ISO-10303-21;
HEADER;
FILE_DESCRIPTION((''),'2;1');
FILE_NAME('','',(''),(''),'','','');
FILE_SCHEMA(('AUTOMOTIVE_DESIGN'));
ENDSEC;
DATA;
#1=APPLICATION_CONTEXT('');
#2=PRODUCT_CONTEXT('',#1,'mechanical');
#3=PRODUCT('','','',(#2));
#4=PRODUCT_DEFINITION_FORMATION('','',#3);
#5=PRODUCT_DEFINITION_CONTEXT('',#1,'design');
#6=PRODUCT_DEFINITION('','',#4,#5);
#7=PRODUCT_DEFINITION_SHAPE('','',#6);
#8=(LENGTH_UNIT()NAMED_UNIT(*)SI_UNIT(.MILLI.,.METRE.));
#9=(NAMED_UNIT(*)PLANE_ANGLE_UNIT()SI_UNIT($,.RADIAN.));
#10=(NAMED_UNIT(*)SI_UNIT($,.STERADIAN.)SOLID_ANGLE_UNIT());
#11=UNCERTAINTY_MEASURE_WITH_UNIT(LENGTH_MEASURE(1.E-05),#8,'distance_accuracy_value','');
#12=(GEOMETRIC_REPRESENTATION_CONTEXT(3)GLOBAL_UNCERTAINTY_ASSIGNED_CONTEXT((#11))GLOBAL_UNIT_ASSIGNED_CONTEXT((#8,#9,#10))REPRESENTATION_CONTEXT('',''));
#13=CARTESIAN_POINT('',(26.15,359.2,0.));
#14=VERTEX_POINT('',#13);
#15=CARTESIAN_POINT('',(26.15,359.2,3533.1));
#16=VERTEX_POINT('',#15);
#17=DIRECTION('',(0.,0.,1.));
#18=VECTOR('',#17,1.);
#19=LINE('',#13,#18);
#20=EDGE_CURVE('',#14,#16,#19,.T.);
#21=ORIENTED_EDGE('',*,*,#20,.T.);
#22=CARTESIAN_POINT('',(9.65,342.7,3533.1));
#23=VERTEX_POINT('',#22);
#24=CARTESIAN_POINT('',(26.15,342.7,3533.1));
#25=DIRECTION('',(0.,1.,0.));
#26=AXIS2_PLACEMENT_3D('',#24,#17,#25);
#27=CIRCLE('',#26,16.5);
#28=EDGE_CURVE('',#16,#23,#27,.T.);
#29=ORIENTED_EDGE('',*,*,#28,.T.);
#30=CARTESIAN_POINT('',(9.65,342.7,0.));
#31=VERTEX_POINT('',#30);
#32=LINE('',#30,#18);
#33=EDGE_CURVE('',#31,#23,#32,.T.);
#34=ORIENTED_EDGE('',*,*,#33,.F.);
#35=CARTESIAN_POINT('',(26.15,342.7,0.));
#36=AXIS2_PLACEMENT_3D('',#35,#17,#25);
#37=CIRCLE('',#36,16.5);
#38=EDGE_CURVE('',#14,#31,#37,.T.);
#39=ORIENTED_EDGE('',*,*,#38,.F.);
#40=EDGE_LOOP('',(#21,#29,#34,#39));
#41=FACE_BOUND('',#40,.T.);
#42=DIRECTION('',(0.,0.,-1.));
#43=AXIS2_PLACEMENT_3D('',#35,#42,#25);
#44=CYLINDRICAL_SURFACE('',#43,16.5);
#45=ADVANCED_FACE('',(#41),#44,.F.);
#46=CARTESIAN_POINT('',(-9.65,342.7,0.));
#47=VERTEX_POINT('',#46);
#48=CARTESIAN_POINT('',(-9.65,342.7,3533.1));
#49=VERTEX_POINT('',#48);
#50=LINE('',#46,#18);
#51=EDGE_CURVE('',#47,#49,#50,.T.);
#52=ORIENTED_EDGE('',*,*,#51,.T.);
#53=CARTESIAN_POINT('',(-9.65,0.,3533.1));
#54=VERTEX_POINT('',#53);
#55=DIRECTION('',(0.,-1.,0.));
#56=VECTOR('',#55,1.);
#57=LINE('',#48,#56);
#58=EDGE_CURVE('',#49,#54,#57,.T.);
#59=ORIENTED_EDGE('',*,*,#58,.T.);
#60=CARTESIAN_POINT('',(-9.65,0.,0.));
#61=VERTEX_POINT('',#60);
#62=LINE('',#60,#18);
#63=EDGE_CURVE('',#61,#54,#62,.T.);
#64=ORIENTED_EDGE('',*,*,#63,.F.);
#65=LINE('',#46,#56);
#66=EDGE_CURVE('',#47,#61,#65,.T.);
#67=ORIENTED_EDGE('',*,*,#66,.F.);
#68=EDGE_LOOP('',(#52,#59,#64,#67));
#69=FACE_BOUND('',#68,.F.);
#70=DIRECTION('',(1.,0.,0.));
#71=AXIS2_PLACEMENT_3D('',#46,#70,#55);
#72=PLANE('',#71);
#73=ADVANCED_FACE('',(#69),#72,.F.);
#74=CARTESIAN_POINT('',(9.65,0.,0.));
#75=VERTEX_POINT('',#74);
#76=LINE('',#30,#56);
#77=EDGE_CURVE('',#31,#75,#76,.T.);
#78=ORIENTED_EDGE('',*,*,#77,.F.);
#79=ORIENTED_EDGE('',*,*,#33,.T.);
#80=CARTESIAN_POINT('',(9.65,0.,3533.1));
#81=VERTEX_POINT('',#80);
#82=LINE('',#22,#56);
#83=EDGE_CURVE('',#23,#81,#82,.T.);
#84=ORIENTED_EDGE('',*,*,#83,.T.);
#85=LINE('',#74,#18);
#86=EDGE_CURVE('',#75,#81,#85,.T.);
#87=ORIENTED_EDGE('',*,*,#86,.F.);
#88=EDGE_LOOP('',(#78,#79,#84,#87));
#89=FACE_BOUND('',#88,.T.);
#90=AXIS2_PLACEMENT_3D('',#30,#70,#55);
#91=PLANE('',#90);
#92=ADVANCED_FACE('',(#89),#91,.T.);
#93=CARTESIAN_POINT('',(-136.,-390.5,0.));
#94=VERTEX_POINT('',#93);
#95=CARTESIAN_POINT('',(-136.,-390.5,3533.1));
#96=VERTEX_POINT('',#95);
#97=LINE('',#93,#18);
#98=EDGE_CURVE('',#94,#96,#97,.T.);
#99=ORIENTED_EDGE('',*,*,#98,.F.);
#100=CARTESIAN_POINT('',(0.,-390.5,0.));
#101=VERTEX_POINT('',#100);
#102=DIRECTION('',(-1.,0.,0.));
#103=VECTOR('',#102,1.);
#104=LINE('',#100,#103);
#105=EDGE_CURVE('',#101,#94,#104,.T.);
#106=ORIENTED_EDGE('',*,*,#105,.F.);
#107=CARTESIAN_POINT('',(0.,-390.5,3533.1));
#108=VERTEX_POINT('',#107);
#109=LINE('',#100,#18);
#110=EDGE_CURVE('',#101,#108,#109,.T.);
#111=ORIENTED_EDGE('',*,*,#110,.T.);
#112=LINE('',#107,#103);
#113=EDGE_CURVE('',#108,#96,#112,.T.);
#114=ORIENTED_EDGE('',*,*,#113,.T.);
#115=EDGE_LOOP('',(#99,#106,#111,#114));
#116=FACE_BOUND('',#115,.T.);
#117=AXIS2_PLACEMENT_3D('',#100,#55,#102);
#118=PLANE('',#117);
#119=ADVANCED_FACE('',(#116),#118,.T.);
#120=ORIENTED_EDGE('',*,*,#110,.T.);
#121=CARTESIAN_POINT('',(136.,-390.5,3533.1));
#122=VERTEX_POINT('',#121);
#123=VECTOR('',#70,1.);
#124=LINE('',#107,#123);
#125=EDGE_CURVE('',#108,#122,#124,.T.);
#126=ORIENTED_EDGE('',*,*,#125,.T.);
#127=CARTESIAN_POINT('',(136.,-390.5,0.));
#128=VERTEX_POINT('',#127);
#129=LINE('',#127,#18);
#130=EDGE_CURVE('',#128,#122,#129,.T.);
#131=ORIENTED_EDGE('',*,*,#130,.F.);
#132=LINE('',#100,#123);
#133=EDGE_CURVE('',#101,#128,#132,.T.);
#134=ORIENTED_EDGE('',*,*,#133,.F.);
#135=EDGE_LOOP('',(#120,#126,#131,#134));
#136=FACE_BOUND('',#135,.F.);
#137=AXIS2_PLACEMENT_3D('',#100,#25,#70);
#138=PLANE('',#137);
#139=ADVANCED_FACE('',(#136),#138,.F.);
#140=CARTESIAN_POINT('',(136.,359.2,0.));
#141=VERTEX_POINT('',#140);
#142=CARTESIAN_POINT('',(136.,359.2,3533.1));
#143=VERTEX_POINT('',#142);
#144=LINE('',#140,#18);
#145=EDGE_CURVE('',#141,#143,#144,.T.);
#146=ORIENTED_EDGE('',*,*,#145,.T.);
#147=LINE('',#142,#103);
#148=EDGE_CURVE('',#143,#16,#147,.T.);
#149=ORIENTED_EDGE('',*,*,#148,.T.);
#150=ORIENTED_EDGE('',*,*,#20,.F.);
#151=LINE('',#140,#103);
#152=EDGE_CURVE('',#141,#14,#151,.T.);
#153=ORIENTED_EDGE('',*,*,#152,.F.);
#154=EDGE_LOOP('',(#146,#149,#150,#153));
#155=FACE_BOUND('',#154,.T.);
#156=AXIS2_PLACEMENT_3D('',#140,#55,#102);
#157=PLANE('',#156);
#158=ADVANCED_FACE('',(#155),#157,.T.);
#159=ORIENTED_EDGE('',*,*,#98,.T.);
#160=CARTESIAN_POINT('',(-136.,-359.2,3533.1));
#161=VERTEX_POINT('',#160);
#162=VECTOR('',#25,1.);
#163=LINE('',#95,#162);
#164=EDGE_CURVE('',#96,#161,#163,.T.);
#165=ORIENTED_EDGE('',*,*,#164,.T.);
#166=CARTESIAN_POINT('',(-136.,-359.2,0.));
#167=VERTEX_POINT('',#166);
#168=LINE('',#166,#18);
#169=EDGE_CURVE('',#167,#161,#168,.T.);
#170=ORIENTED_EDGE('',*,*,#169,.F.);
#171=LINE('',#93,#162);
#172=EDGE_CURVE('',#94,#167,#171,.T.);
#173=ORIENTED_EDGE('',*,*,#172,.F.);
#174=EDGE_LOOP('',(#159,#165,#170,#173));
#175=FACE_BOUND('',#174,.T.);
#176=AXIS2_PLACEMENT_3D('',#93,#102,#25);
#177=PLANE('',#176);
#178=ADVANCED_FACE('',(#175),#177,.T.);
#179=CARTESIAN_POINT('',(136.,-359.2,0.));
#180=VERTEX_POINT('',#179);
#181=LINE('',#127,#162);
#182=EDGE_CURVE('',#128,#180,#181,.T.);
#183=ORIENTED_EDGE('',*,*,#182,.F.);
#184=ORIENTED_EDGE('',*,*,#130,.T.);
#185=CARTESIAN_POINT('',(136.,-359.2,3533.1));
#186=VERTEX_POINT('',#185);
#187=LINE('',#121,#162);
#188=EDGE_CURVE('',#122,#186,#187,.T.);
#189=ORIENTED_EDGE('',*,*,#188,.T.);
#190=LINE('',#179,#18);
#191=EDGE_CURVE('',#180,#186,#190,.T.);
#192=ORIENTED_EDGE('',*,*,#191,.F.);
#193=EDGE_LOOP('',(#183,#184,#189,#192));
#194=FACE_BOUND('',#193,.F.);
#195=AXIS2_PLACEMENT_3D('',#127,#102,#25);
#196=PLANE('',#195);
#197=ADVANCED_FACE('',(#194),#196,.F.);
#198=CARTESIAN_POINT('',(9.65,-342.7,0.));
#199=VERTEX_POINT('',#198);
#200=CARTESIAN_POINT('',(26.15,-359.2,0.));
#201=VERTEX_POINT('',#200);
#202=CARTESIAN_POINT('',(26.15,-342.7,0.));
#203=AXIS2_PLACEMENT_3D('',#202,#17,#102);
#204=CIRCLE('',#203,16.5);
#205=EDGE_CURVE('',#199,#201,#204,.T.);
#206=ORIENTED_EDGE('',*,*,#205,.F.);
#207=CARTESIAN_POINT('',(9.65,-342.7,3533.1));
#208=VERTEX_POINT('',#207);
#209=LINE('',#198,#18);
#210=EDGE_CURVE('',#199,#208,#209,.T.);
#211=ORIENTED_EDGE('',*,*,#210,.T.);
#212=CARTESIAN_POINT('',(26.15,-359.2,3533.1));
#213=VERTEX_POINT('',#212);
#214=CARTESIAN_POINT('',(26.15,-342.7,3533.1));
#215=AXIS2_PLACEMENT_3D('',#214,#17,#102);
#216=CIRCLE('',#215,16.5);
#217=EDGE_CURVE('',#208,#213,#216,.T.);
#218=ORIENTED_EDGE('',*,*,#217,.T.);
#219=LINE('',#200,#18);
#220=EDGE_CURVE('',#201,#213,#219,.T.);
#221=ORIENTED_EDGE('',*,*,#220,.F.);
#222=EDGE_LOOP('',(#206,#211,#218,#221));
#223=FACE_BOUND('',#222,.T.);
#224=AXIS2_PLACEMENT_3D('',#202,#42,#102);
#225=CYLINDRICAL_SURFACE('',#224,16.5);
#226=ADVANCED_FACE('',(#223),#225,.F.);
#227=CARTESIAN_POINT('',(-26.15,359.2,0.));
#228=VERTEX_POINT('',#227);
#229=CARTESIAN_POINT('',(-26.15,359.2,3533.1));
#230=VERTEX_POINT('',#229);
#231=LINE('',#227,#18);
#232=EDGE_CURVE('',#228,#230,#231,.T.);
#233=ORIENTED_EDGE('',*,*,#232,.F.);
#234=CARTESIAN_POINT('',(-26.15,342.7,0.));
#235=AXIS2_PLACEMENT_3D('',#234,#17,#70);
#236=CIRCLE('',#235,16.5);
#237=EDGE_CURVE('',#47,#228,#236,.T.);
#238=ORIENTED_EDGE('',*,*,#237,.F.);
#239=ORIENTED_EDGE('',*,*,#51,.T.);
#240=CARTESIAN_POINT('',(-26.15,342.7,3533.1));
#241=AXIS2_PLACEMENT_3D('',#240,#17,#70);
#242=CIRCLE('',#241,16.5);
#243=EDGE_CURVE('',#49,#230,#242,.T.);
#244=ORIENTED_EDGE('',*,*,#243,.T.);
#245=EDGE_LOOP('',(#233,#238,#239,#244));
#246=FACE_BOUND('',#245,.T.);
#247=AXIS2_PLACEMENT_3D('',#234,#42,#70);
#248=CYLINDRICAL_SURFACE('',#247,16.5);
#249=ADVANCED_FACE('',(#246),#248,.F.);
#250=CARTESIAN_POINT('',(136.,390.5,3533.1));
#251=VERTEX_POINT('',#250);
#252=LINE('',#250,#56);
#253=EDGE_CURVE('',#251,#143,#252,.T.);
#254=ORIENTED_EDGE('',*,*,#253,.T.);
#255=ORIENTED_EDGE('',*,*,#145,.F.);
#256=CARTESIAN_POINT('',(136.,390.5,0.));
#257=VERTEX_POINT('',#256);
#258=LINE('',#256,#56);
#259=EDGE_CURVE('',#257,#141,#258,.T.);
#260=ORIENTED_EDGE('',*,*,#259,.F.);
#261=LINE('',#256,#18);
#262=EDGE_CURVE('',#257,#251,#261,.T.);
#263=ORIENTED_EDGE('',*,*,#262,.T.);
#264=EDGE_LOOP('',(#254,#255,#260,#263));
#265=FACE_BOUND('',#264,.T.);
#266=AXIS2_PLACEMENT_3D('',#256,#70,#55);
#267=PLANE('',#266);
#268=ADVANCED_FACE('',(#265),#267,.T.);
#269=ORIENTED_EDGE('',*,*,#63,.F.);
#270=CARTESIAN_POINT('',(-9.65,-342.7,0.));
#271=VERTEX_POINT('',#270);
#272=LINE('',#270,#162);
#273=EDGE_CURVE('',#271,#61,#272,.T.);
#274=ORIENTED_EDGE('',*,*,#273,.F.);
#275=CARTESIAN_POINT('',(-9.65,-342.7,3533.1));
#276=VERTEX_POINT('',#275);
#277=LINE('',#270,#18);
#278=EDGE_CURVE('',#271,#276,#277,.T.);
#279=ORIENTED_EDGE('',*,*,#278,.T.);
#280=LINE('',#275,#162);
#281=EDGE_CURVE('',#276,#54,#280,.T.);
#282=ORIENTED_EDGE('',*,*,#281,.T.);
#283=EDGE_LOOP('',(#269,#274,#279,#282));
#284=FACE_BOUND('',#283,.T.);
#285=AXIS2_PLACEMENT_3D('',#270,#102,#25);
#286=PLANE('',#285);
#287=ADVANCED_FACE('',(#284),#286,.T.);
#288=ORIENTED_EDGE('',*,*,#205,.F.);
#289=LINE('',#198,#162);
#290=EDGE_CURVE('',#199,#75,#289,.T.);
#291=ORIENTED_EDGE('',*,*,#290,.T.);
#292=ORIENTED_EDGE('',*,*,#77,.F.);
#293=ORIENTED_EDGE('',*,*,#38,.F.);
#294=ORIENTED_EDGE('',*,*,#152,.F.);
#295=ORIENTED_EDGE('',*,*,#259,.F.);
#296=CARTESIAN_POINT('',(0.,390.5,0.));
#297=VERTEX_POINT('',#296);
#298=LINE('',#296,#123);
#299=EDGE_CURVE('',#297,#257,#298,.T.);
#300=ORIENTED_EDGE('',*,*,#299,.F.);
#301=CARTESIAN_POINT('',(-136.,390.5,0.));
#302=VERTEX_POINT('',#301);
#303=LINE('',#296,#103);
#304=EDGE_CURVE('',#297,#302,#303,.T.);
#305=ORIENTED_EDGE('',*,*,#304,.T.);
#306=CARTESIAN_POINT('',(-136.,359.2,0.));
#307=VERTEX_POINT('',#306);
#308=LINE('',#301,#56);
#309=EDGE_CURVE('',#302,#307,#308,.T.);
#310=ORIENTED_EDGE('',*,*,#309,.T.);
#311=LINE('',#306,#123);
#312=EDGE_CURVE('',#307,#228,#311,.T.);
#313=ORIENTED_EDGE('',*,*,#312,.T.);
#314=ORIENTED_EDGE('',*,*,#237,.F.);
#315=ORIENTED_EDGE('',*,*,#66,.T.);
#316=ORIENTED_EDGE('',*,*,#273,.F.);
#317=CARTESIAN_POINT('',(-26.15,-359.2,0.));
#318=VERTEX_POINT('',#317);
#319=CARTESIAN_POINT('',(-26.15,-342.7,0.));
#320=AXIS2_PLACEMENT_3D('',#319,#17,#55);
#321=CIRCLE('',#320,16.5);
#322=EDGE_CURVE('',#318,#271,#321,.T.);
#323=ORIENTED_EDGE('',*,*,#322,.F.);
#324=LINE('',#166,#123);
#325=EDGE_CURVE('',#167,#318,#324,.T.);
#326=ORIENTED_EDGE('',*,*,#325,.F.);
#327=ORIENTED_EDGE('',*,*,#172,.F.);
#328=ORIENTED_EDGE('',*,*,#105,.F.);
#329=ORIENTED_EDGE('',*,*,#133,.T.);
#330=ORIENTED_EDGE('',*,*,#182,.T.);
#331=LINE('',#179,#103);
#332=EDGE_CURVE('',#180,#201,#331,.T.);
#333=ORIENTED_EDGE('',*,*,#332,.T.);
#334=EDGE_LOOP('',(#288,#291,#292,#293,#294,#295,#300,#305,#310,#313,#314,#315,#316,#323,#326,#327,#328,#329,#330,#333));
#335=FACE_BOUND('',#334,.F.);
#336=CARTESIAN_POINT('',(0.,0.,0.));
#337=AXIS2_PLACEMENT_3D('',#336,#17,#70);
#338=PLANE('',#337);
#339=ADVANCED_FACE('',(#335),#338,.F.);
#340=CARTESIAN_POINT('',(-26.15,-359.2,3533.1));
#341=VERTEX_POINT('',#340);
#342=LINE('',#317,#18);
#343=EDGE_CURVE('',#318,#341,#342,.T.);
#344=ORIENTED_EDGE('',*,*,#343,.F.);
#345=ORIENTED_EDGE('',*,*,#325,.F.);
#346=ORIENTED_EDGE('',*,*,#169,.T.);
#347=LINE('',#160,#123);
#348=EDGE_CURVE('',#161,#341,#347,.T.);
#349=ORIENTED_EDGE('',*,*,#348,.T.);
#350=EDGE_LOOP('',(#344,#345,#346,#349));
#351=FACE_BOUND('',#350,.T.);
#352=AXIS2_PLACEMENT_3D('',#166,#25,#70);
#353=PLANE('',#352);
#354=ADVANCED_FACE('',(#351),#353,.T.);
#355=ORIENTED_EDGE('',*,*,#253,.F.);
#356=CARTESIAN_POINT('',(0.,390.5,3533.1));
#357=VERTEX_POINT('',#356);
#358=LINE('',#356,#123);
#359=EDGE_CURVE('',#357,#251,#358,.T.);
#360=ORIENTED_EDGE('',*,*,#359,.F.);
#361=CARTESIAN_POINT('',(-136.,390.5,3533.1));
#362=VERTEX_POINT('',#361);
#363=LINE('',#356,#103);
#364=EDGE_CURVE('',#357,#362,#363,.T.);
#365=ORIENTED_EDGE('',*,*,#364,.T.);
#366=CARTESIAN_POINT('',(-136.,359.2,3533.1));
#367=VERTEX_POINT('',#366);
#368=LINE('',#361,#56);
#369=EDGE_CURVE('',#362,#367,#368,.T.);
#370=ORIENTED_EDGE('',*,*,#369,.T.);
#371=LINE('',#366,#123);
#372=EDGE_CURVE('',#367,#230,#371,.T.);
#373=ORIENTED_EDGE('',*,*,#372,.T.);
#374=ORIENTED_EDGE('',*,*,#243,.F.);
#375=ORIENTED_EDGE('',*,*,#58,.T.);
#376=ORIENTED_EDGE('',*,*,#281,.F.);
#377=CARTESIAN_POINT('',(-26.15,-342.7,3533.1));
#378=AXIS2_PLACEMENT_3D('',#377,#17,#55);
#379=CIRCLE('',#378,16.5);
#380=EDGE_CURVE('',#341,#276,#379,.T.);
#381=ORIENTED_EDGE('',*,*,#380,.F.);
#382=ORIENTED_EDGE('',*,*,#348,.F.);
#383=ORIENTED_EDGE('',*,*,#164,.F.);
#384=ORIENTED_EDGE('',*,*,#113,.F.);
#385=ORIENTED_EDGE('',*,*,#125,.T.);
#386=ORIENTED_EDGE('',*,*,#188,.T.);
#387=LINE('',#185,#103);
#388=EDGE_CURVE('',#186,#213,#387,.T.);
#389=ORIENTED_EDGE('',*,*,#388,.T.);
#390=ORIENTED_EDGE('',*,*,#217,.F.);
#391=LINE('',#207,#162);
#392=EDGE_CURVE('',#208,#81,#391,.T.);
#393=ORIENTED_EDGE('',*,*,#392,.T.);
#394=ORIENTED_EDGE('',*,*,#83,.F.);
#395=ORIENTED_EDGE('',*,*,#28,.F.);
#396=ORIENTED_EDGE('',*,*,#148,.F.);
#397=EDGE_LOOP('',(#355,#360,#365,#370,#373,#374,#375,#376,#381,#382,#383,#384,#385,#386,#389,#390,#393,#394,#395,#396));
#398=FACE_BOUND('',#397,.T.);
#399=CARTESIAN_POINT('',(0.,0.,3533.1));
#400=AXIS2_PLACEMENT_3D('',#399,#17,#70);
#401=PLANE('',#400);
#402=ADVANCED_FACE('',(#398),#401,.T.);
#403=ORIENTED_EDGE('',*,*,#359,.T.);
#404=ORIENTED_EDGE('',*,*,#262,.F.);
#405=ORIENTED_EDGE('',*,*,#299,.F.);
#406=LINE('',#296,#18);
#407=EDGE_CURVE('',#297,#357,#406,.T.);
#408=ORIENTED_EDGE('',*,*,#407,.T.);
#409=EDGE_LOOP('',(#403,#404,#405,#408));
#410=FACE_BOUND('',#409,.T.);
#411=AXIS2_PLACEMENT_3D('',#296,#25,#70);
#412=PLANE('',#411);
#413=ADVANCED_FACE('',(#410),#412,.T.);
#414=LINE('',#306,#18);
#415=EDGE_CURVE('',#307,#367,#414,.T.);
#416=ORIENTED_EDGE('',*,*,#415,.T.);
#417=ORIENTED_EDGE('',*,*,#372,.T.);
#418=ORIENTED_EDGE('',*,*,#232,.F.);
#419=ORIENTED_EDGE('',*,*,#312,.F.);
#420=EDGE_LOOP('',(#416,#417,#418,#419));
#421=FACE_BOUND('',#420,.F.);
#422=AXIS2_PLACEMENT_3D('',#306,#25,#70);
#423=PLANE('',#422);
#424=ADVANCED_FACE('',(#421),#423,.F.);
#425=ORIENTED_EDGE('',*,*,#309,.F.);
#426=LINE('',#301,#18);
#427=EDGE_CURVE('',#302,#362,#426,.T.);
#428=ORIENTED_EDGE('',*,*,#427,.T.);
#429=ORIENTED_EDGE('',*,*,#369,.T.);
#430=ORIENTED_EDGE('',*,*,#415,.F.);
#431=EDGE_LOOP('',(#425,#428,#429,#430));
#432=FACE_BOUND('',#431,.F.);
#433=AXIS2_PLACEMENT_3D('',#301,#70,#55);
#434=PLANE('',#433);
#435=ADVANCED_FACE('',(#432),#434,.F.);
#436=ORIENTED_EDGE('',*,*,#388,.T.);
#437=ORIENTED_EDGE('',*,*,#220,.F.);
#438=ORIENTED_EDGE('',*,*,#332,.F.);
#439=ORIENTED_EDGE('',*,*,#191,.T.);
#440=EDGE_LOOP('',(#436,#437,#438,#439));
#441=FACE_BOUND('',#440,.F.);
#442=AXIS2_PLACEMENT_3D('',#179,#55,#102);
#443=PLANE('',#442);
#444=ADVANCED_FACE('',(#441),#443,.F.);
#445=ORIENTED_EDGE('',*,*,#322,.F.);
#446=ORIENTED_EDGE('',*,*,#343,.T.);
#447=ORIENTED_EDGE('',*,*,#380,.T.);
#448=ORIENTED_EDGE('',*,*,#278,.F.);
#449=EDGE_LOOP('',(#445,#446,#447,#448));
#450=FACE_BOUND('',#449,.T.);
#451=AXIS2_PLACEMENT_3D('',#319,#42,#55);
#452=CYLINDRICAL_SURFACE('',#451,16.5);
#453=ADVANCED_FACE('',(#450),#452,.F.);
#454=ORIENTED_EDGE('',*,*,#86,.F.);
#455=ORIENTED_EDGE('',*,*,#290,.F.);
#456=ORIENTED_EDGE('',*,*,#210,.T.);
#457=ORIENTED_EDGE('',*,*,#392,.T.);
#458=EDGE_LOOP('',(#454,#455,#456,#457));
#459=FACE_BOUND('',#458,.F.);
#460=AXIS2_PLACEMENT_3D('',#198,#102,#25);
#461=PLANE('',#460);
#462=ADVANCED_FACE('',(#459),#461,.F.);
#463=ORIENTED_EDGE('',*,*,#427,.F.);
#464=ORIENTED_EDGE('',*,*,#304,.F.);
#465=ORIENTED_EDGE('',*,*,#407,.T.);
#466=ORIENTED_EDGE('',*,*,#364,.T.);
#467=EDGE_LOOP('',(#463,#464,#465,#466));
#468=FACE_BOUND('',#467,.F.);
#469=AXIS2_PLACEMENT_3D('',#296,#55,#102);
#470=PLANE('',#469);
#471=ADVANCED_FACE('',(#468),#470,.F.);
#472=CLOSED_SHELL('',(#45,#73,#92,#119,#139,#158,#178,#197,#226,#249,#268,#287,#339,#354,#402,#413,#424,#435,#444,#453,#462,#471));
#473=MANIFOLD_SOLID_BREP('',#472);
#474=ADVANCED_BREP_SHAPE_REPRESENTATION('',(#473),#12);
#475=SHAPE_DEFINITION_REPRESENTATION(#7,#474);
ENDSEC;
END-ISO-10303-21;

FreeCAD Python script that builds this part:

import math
import FreeCAD as App
import Part
import Sketcher

V = App.Vector

doc = App.newDocument("Part")
body = doc.addObject("PartDesign::Body", "Body")

sketch1 = body.newObject("Sketcher::SketchObject", "Sketch")
sketch1.AttachmentSupport = (doc.getObject("XY_Plane"), [""])
sketch1.MapMode = "FlatFace"
sketch1.addGeometry([
    Part.LineSegment(V(-136, -359.2, 0), V(-136, -390.5, 0)),
    Part.LineSegment(V(-136, -390.5, 0), V(136, -390.5, 0)),
    Part.LineSegment(V(136, -390.5, 0), V(136, -359.2, 0)),
    Part.LineSegment(V(136, -359.2, 0), V(26.15, -359.2, 0)),
    Part.ArcOfCircle(Part.Circle(V(26.15, -342.7, 0), V(0, 0, 1), 16.5), math.radians(180), math.radians(270)),
    Part.LineSegment(V(9.65, -342.7, 0), V(9.65, 342.7, 0)),
    Part.ArcOfCircle(Part.Circle(V(26.15, 342.7, 0), V(0, 0, 1), 16.5), math.radians(90), math.radians(180)),
    Part.LineSegment(V(26.15, 359.2, 0), V(136, 359.2, 0)),
    Part.LineSegment(V(136, 359.2, 0), V(136, 390.5, 0)),
    Part.LineSegment(V(136, 390.5, 0), V(-136, 390.5, 0)),
    Part.LineSegment(V(-136, 390.5, 0), V(-136, 359.2, 0)),
    Part.LineSegment(V(-136, 359.2, 0), V(-26.15, 359.2, 0)),
    Part.ArcOfCircle(Part.Circle(V(-26.15, 342.7, 0), V(0, 0, 1), 16.5), math.radians(0), math.radians(90)),
    Part.LineSegment(V(-9.65, 342.7, 0), V(-9.65, -342.7, 0)),
    Part.ArcOfCircle(Part.Circle(V(-26.15, -342.7, 0), V(0, 0, 1), 16.5), math.radians(-90), math.radians(0)),
    Part.LineSegment(V(-26.15, -359.2, 0), V(-136, -359.2, 0)),
], False)
sketch1.addConstraint([
    Sketcher.Constraint("Coincident", 0, 2, 1, 1),
    Sketcher.Constraint("Coincident", 1, 2, 2, 1),
    Sketcher.Constraint("Coincident", 2, 2, 3, 1),
    Sketcher.Constraint("Tangent", 3, 2, 4, 2),
    Sketcher.Constraint("Tangent", 4, 1, 5, 1),
    Sketcher.Constraint("Tangent", 5, 2, 6, 2),
    Sketcher.Constraint("Tangent", 6, 1, 7, 1),
    Sketcher.Constraint("Coincident", 7, 2, 8, 1),
    Sketcher.Constraint("Coincident", 8, 2, 9, 1),
    Sketcher.Constraint("Coincident", 9, 2, 10, 1),
    Sketcher.Constraint("Coincident", 10, 2, 11, 1),
    Sketcher.Constraint("Tangent", 11, 2, 12, 2),
    Sketcher.Constraint("Tangent", 12, 1, 13, 1),
    Sketcher.Constraint("Tangent", 13, 2, 14, 2),
    Sketcher.Constraint("Tangent", 14, 1, 15, 1),
    Sketcher.Constraint("Coincident", 15, 2, 0, 1),
    Sketcher.Constraint("Vertical", 0),
    Sketcher.Constraint("Horizontal", 1),
    Sketcher.Constraint("Vertical", 2),
    Sketcher.Constraint("Horizontal", 3),
    Sketcher.Constraint("Vertical", 5),
    Sketcher.Constraint("Horizontal", 7),
    Sketcher.Constraint("Vertical", 8),
    Sketcher.Constraint("Horizontal", 9),
    Sketcher.Constraint("Vertical", 10),
    Sketcher.Constraint("Horizontal", 11),
    Sketcher.Constraint("Vertical", 13),
    Sketcher.Constraint("Horizontal", 15),
    Sketcher.Constraint("Equal", 4, 6),
    Sketcher.Constraint("Equal", 6, 12),
    Sketcher.Constraint("Equal", 12, 14),
    Sketcher.Constraint("Symmetric", 4, 3, 12, 3, -1, 1),
    Sketcher.Constraint("Symmetric", 0, 2, 8, 2, -1, 1),
    Sketcher.Constraint("Symmetric", 7, 2, 10, 2, -2),
    Sketcher.Constraint("Symmetric", 2, 2, 15, 2, -2),
    Sketcher.Constraint("Radius", 4, 16.5),
    Sketcher.Constraint("DistanceY", 0, 2, 0, 1, 31.3),
    Sketcher.Constraint("DistanceX", 0, 2, -1, 1, 136.0),
    Sketcher.Constraint("DistanceY", 0, 2, -1, 1, 390.5),
    Sketcher.Constraint("DistanceX", -1, 1, 4, 1, 9.65),
])
pad1 = body.newObject("PartDesign::Pad", "Pad")
pad1.Profile = sketch1
pad1.Length = 3533.1

doc.recompute()
